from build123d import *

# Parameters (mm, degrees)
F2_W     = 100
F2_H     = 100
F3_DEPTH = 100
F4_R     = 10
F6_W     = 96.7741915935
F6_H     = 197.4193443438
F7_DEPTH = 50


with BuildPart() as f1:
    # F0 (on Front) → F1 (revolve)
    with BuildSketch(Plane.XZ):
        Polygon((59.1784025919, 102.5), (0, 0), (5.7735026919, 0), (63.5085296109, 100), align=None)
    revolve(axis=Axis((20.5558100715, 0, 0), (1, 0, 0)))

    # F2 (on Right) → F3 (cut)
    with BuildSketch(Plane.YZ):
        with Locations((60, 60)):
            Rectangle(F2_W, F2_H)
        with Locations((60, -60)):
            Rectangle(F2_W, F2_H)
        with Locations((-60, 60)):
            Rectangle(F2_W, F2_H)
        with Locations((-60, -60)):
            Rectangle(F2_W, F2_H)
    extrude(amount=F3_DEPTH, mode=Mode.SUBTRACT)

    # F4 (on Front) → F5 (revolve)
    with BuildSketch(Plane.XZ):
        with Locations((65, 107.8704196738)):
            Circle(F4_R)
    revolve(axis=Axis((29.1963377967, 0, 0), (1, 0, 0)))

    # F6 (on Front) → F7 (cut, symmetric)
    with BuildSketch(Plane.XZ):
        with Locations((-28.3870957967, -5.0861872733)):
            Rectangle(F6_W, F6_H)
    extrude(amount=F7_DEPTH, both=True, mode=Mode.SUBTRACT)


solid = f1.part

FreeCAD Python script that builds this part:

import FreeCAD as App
import Part
import Sketcher

V = App.Vector
Q = App.Units.Quantity


def add_polygon(sketch, points):
    """Adds a closed chain of lines whose ends are joined by coincident constraints."""
    first, n = sketch.GeometryCount, len(points)
    for a, b in zip(points, points[1:] + points[:1]):
        sketch.addGeometry(Part.LineSegment(App.Vector(*a, 0), App.Vector(*b, 0)), False)
    for i in range(n):
        sketch.addConstraint(Sketcher.Constraint("Coincident", first + i, 2, first + (i + 1) % n, 1))

doc = App.newDocument("Part")
body = doc.addObject("PartDesign::Body", "Body")

sketch1 = body.newObject("Sketcher::SketchObject", "Sketch")
sketch1.AttachmentSupport = (doc.getObject("XZ_Plane"), [""])
sketch1.MapMode = "FlatFace"
add_polygon(sketch1, [(59, 102), (0, 0), (6, 0), (64, 100)])
sketch1.addConstraint(Sketcher.Constraint("Horizontal", 1))
sketch1.addConstraint(Sketcher.Constraint("Coincident", 0, 2, -1, 1))
sketch1.addConstraint(Sketcher.Constraint("Parallel", 0, 2))
sketch1.addConstraint(Sketcher.Constraint("Perpendicular", 2, 3))
sketch1.addConstraint(Sketcher.Constraint("Angle", 0, Q("-120 deg")))
sketch1.addConstraint(Sketcher.Constraint("Distance", 3, Q("5 mm")))
sketch1.addConstraint(Sketcher.Constraint("DistanceY", -1, 1, 2, 2, Q("100 mm")))
revolution = body.newObject("PartDesign::Revolution", "Revolution")
revolution.Profile = sketch1
revolution.ReferenceAxis = (sketch1, ["H_Axis"])
revolution.Angle = 360

sketch2 = body.newObject("Sketcher::SketchObject", "Sketch001")
sketch2.AttachmentSupport = (doc.getObject("YZ_Plane"), [""])
sketch2.MapMode = "FlatFace"
add_polygon(sketch2, [(10, 110), (10, 10), (110, 10), (110, 110)])
add_polygon(sketch2, [(10, -10), (10, -110), (110, -110), (110, -10)])
add_polygon(sketch2, [(-110, 110), (-110, 10), (-10, 10), (-10, 110)])
add_polygon(sketch2, [(-110, -10), (-110, -110), (-10, -110), (-10, -10)])
sketch2.addConstraint(Sketcher.Constraint("Vertical", 0))
sketch2.addConstraint(Sketcher.Constraint("Horizontal", 1))
sketch2.addConstraint(Sketcher.Constraint("Vertical", 2))
sketch2.addConstraint(Sketcher.Constraint("Horizontal", 3))
sketch2.addConstraint(Sketcher.Constraint("Vertical", 4))
sketch2.addConstraint(Sketcher.Constraint("Horizontal", 5))
sketch2.addConstraint(Sketcher.Constraint("Vertical", 6))
sketch2.addConstraint(Sketcher.Constraint("Horizontal", 7))
sketch2.addConstraint(Sketcher.Constraint("Vertical", 8))
sketch2.addConstraint(Sketcher.Constraint("Horizontal", 9))
sketch2.addConstraint(Sketcher.Constraint("Vertical", 10))
sketch2.addConstraint(Sketcher.Constraint("Horizontal", 11))
sketch2.addConstraint(Sketcher.Constraint("Vertical", 12))
sketch2.addConstraint(Sketcher.Constraint("Horizontal", 13))
sketch2.addConstraint(Sketcher.Constraint("Vertical", 14))
sketch2.addConstraint(Sketcher.Constraint("Horizontal", 15))
sketch2.addConstraint(Sketcher.Constraint("Symmetric", 6, 2, 8, 2, -1, 1))
sketch2.addConstraint(Sketcher.Constraint("Symmetric", 4, 2, 10, 2, -1, 1))
sketch2.addConstraint(Sketcher.Constraint("Symmetric", 2, 2, 12, 2, -1, 1))
sketch2.addConstraint(Sketcher.Constraint("Symmetric", 0, 2, 14, 2, -1, 1))
sketch2.addConstraint(Sketcher.Constraint("Symmetric", 1, 2, 8, 2, -2))
sketch2.addConstraint(Sketcher.Constraint("Symmetric", 3, 2, 10, 2, -2))
sketch2.addConstraint(Sketcher.Constraint("Equal", 15, 0))
sketch2.addConstraint(Sketcher.Constraint("DistanceX", 1, 1, 1, 2, Q("100 mm")))
sketch2.addConstraint(Sketcher.Constraint("DistanceX", -1, 1, 0, 2, Q("10 mm")))
sketch2.addConstraint(Sketcher.Constraint("DistanceY", -1, 1, 0, 2, Q("10 mm")))
pocket1 = body.newObject("PartDesign::Pocket", "Pocket")
pocket1.Profile = sketch2
pocket1.Length = 100
pocket1.Reversed = True

sketch3 = body.newObject("Sketcher::SketchObject", "Sketch002")
sketch3.AttachmentSupport = (doc.getObject("XZ_Plane"), [""])
sketch3.MapMode = "FlatFace"
sketch3.addGeometry(Part.Circle(V(65, 108, 0), V(0, 0, 1), 10), False)
sketch3.addConstraint(Sketcher.Constraint("Diameter", 0, Q("20 mm")))
sketch3.addConstraint(Sketcher.Constraint("DistanceX", -1, 1, 0, 3, Q("65 mm")))
sketch3.addConstraint(Sketcher.Constraint("DistanceY", -1, 1, 0, 3, Q("107.87042 mm")))
revolution2 = body.newObject("PartDesign::Revolution", "Revolution001")
revolution2.Profile = sketch3
revolution2.ReferenceAxis = (sketch3, ["H_Axis"])
revolution2.Angle = 360

sketch4 = body.newObject("Sketcher::SketchObject", "Sketch003")
sketch4.AttachmentSupport = (doc.getObject("XZ_Plane"), [""])
sketch4.MapMode = "FlatFace"
add_polygon(sketch4, [(-77, 94), (-77, -104), (20, -104), (20, 94)])
sketch4.addConstraint(Sketcher.Constraint("Vertical", 0))
sketch4.addConstraint(Sketcher.Constraint("Horizontal", 1))
sketch4.addConstraint(Sketcher.Constraint("Vertical", 2))
sketch4.addConstraint(Sketcher.Constraint("Horizontal", 3))
sketch4.addConstraint(Sketcher.Constraint("DistanceX", -1, 1, 1, 2, Q("20 mm")))
sketch4.addConstraint(Sketcher.Constraint("DistanceX", 1, 1, 1, 2, Q("96.774192 mm")))
sketch4.addConstraint(Sketcher.Constraint("DistanceY", 0, 2, 0, 1, Q("197.419344 mm")))
sketch4.addConstraint(Sketcher.Constraint("DistanceY", 0, 2, -1, 1, Q("103.795859 mm")))
pocket2 = body.newObject("PartDesign::Pocket", "Pocket001")
pocket2.Profile = sketch4
pocket2.Length = 100
pocket2.Midplane = True

doc.recompute()
